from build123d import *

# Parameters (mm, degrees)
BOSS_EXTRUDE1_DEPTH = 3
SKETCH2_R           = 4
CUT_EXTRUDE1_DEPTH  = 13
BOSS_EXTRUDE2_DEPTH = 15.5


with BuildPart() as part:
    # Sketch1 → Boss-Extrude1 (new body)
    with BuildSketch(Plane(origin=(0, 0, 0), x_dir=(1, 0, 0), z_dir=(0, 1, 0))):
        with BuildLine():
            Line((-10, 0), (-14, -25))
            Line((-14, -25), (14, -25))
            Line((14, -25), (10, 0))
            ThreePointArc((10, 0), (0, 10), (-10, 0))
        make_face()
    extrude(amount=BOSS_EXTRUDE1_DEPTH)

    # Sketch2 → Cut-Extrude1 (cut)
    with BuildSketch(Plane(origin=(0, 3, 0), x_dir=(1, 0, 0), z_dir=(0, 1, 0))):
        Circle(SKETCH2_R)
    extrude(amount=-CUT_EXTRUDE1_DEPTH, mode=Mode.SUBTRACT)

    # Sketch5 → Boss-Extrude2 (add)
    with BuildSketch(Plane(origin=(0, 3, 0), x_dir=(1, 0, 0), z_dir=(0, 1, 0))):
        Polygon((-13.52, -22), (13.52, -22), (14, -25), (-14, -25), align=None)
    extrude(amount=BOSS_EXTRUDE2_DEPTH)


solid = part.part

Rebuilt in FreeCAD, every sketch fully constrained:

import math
import FreeCAD as App
import Part
import Sketcher

V = App.Vector
Q = App.Units.Quantity


def add_polygon(sketch, points):
    """Adds a closed chain of lines whose ends are joined by coincident constraints."""
    first, n = sketch.GeometryCount, len(points)
    for a, b in zip(points, points[1:] + points[:1]):
        sketch.addGeometry(Part.LineSegment(App.Vector(*a, 0), App.Vector(*b, 0)), False)
    for i in range(n):
        sketch.addConstraint(Sketcher.Constraint("Coincident", first + i, 2, first + (i + 1) % n, 1))

doc = App.newDocument("Part")
body = doc.addObject("PartDesign::Body", "Body")

# Sketch on XZ plane
sketch1 = body.newObject("Sketcher::SketchObject", "Sketch")
sketch1.AttachmentSupport = (doc.getObject("XZ_Plane"), [""])
sketch1.MapMode = "FlatFace"
sketch1.addGeometry(Part.LineSegment(V(-10, 0, 0), V(-14, 25, 0)), False)
sketch1.addGeometry(Part.LineSegment(V(-14, 25, 0), V(14, 25, 0)), False)
sketch1.addGeometry(Part.LineSegment(V(14, 25, 0), V(10, 0, 0)), False)
sketch1.addGeometry(Part.ArcOfCircle(Part.Circle(V(0, 0, 0), V(0, 0, 1), 10), math.radians(180), math.radians(360)), False)
sketch1.addConstraint(Sketcher.Constraint("Coincident", 0, 2, 1, 1))
sketch1.addConstraint(Sketcher.Constraint("Coincident", 1, 2, 2, 1))
sketch1.addConstraint(Sketcher.Constraint("Coincident", 2, 2, 3, 2))
sketch1.addConstraint(Sketcher.Constraint("Coincident", 3, 1, 0, 1))
sketch1.addConstraint(Sketcher.Constraint("Horizontal", 1))
sketch1.addConstraint(Sketcher.Constraint("Coincident", 3, 3, -1, 1))
sketch1.addConstraint(Sketcher.Constraint("PointOnObject", 2, 2, -1))
sketch1.addConstraint(Sketcher.Constraint("PointOnObject", 3, 1, -1))
sketch1.addConstraint(Sketcher.Constraint("Equal", 0, 2))
sketch1.addConstraint(Sketcher.Constraint("Radius", 3, Q("10 mm")))
sketch1.addConstraint(Sketcher.Constraint("DistanceX", 1, 1, 1, 2, Q("28 mm")))
sketch1.addConstraint(Sketcher.Constraint("DistanceY", -1, 1, 0, 2, Q("25 mm")))
pad1 = body.newObject("PartDesign::Pad", "Pad")
pad1.Profile = sketch1
pad1.Length = 3
pad1.Reversed = True

# Sketch on XZ plane
sketch2 = body.newObject("Sketcher::SketchObject", "Sketch001")
sketch2.AttachmentSupport = (doc.getObject("XZ_Plane"), [""])
sketch2.MapMode = "FlatFace"
sketch2.AttachmentOffset = App.Placement(V(0, 0, -3), App.Rotation())
sketch2.addGeometry(Part.Circle(V(0, 0, 0), V(0, 0, 1), 4), False)
sketch2.addConstraint(Sketcher.Constraint("Coincident", 0, 3, -1, 1))
sketch2.addConstraint(Sketcher.Constraint("Diameter", 0, Q("8 mm")))
pocket1 = body.newObject("PartDesign::Pocket", "Pocket")
pocket1.Profile = sketch2
pocket1.Length = 13
pocket1.Reversed = True

# Sketch on XZ plane
sketch3 = body.newObject("Sketcher::SketchObject", "Sketch002")
sketch3.AttachmentSupport = (doc.getObject("XZ_Plane"), [""])
sketch3.MapMode = "FlatFace"
sketch3.AttachmentOffset = App.Placement(V(0, 0, -3), App.Rotation())
add_polygon(sketch3, [(13.5, 22), (-13.5, 22), (-14, 25), (14, 25)])  # lines 0-3
sketch3.addConstraint(Sketcher.Constraint("Horizontal", 0))
sketch3.addConstraint(Sketcher.Constraint("Horizontal", 2))
sketch3.addConstraint(Sketcher.Constraint("Equal", 1, 3))
sketch3.addConstraint(Sketcher.Constraint("DistanceX", 2, 1, 2, 2, Q("28 mm")))
sketch3.addConstraint(Sketcher.Constraint("DistanceY", -1, 1, 0, 2, Q("22 mm")))
sketch3.addConstraint(Sketcher.Constraint("DistanceX", 1, 2, -1, 1, Q("14 mm")))
sketch3.addConstraint(Sketcher.Constraint("DistanceY", -1, 1, 1, 2, Q("25 mm")))
sketch3.addConstraint(Sketcher.Constraint("DistanceX", 0, 2, 0, 1, Q("27.04 mm")))
pad2 = body.newObject("PartDesign::Pad", "Pad001")
pad2.Profile = sketch3
pad2.Length = 15.5
pad2.Reversed = True

doc.recompute()
